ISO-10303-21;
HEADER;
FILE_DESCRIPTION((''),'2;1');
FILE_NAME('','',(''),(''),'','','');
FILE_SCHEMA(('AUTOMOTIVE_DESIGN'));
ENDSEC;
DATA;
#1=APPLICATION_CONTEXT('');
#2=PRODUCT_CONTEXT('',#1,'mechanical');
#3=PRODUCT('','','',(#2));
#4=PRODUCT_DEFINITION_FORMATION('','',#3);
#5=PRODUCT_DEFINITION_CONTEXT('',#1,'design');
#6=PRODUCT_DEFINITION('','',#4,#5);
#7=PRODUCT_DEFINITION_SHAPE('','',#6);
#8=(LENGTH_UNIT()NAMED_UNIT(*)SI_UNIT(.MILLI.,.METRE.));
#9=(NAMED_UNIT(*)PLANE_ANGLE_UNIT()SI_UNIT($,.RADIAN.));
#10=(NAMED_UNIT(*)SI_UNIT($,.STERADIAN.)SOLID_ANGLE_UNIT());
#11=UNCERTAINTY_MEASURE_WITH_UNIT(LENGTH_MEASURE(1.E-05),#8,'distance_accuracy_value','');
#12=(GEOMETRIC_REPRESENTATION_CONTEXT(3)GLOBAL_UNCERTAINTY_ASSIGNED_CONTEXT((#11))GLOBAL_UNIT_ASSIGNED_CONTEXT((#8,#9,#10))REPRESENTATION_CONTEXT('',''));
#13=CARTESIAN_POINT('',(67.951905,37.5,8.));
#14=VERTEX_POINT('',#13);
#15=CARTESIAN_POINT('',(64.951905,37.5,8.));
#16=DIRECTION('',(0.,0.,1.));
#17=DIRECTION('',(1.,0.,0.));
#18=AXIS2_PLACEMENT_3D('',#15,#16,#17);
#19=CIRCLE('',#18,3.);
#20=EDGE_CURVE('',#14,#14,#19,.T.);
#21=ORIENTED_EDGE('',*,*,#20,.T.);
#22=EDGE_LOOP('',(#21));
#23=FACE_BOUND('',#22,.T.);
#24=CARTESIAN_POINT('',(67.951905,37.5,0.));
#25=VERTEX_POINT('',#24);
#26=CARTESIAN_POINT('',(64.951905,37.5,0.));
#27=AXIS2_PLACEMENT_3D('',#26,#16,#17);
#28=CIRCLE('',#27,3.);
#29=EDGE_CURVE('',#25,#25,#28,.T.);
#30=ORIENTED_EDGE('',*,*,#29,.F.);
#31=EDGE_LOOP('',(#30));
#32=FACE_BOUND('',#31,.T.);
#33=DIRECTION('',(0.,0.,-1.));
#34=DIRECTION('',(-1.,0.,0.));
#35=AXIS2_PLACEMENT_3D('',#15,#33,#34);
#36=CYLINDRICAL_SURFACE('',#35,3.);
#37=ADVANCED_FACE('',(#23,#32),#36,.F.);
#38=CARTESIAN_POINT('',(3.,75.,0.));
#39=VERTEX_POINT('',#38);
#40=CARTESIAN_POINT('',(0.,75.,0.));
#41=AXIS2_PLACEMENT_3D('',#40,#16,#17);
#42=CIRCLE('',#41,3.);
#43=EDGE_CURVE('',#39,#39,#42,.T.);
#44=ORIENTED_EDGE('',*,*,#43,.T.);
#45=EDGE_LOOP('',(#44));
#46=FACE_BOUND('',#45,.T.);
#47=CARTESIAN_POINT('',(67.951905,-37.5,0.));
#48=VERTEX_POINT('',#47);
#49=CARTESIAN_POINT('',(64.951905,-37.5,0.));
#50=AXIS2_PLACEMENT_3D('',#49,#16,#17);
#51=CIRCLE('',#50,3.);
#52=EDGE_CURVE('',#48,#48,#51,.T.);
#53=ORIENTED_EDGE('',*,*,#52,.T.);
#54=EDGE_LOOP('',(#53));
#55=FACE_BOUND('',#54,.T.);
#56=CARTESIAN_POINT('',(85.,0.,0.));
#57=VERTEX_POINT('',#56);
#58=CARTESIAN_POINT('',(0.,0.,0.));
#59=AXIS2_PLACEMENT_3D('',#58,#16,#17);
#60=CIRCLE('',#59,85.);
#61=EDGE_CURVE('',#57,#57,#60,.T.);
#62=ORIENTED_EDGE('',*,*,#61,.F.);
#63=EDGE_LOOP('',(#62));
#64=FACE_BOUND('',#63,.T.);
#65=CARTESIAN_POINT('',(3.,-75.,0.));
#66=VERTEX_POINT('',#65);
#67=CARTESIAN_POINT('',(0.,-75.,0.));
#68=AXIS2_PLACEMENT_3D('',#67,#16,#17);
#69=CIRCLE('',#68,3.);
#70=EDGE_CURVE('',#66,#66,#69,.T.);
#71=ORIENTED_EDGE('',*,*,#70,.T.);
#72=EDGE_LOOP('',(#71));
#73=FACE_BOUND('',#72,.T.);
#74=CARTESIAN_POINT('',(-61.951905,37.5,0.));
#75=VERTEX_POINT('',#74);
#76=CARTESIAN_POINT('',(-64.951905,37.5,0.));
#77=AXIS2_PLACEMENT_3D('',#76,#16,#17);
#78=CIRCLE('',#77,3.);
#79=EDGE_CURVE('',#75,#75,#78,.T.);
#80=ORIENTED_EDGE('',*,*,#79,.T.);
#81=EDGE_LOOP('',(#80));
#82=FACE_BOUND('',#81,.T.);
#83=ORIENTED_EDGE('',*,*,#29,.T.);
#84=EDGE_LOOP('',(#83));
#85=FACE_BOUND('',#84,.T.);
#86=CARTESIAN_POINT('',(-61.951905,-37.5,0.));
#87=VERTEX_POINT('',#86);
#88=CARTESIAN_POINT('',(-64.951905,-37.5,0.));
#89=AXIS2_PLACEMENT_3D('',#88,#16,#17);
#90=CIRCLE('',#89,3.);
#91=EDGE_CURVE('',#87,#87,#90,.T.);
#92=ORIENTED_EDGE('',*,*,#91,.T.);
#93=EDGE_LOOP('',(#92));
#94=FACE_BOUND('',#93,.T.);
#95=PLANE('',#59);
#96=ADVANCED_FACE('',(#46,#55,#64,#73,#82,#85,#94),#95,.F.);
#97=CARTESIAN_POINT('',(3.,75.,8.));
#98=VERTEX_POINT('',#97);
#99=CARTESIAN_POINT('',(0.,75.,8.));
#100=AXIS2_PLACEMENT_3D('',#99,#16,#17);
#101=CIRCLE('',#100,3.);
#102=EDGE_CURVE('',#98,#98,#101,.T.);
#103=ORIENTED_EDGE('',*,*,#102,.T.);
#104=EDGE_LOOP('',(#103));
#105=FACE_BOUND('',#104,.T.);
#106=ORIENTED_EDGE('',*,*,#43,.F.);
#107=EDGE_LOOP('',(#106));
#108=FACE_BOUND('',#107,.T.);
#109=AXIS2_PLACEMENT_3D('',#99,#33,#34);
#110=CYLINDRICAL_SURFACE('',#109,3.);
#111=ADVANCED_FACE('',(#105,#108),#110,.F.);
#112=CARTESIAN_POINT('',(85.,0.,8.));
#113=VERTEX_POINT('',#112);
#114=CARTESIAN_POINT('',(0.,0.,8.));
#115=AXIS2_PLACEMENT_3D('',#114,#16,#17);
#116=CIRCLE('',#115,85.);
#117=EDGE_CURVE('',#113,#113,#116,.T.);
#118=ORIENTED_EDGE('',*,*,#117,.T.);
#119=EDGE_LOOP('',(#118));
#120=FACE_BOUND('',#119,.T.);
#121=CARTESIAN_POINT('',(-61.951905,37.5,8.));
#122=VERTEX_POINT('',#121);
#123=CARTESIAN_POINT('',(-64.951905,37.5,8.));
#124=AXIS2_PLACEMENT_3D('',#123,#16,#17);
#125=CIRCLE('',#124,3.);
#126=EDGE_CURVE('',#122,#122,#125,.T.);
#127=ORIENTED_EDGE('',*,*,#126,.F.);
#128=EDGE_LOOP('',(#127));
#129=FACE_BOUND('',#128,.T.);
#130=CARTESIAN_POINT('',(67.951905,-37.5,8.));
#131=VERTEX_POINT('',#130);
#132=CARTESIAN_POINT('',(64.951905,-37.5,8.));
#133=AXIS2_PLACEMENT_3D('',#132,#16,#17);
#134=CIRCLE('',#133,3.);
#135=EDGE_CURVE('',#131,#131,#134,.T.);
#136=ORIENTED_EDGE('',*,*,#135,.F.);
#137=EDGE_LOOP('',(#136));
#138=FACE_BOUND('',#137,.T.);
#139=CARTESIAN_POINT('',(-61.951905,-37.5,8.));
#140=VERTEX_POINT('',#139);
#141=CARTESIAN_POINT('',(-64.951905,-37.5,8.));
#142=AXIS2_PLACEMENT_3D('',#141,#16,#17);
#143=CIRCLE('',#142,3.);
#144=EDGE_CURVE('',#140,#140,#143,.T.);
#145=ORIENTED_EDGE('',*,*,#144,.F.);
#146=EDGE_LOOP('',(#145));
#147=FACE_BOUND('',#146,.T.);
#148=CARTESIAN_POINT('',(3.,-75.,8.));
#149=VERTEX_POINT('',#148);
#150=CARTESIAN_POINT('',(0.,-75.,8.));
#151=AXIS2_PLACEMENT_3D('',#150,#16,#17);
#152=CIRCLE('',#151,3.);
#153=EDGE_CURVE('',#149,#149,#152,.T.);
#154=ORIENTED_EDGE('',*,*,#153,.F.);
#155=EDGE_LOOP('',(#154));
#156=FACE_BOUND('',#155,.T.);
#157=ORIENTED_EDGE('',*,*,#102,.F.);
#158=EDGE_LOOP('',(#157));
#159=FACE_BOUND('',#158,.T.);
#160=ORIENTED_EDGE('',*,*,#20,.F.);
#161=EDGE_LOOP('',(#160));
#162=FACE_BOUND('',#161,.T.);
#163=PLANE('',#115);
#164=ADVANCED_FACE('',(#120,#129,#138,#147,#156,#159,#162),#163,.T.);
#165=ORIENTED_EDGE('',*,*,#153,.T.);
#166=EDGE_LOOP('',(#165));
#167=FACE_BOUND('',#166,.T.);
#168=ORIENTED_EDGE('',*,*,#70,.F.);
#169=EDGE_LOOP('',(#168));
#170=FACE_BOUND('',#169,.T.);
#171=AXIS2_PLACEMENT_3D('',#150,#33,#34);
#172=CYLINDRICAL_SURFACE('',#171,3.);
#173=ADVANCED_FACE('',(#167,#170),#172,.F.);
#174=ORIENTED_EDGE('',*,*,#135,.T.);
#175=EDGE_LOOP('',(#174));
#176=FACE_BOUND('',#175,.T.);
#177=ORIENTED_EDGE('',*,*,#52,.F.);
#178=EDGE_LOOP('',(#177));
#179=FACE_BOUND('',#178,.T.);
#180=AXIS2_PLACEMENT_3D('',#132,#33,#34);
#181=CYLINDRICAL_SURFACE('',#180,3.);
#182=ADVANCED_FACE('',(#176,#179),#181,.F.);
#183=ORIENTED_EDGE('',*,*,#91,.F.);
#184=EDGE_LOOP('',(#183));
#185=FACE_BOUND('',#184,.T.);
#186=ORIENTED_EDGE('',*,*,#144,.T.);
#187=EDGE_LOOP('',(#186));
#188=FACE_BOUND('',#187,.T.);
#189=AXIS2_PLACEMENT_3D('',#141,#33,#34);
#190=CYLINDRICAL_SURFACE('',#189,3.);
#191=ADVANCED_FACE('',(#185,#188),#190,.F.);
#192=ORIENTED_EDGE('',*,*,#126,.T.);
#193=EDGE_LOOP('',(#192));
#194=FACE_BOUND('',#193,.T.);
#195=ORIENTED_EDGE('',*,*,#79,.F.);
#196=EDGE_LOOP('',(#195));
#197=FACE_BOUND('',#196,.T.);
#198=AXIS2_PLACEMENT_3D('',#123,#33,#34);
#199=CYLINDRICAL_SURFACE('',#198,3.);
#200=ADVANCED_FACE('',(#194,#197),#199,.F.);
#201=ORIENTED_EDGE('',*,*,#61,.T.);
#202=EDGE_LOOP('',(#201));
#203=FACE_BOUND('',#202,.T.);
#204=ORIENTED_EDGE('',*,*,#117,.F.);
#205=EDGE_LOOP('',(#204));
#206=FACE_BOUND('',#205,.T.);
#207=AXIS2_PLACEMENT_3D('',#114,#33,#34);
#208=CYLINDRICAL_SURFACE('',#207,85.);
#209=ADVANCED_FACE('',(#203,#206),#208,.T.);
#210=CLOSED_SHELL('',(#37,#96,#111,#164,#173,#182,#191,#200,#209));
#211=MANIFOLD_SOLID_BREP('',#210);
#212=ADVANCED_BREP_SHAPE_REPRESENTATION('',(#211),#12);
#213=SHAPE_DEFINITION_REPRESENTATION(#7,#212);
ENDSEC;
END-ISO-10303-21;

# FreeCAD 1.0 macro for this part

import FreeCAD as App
import Part
import Sketcher
from FreeCAD import Vector

doc = App.newDocument("Part")
body = doc.addObject("PartDesign::Body", "Body")

# Sketch on XY plane
sketch1 = body.newObject("Sketcher::SketchObject", "Sketch")
sketch1.AttachmentSupport = (doc.getObject("XY_Plane"), [""])
sketch1.MapMode = "FlatFace"
sketch1.addGeometry([
    Part.Circle(Vector(0, 0, 0), Vector(0, 0, 1), 85),  # 0
    Part.Circle(Vector(-65, -37.5, 0), Vector(0, 0, 1), 3),  # 1
    Part.Circle(Vector(0, -75, 0), Vector(0, 0, 1), 3),  # 2
    Part.Circle(Vector(65, -37.5, 0), Vector(0, 0, 1), 3),  # 3
    Part.Circle(Vector(-65, 37.5, 0), Vector(0, 0, 1), 3),  # 4
    Part.Circle(Vector(65, 37.5, 0), Vector(0, 0, 1), 3),  # 5
    Part.Circle(Vector(0, 75, 0), Vector(0, 0, 1), 3),  # 6
], False)
sketch1.addConstraint([
    Sketcher.Constraint("Coincident", 0, 3, -1, 1),
    Sketcher.Constraint("Equal", 1, 2),
    Sketcher.Constraint("Equal", 2, 3),
    Sketcher.Constraint("Equal", 3, 4),
    Sketcher.Constraint("Equal", 4, 5),
    Sketcher.Constraint("Equal", 5, 6),
    Sketcher.Constraint("Symmetric", 3, 3, 4, 3, -1, 1),
    Sketcher.Constraint("Symmetric", 1, 3, 5, 3, -1, 1),
    Sketcher.Constraint("Symmetric", 2, 3, 6, 3, -1, 1),
    Sketcher.Constraint("Symmetric", 1, 3, 3, 3, -2),
    Sketcher.Constraint("PointOnObject", 2, 3, -2),
    Sketcher.Constraint("Diameter", 0, 170.0),
    Sketcher.Constraint("Diameter", 1, 6.0),
    Sketcher.Constraint("DistanceY", 2, 3, -1, 1, 75.0),
    Sketcher.Constraint("DistanceY", 1, 3, 4, 3, 75.0),
    Sketcher.Constraint("DistanceX", 1, 3, 3, 3, 129.903811),
])
pad1 = body.newObject("PartDesign::Pad", "Pad")
pad1.Profile = sketch1
pad1.Length = 8

doc.recompute()
